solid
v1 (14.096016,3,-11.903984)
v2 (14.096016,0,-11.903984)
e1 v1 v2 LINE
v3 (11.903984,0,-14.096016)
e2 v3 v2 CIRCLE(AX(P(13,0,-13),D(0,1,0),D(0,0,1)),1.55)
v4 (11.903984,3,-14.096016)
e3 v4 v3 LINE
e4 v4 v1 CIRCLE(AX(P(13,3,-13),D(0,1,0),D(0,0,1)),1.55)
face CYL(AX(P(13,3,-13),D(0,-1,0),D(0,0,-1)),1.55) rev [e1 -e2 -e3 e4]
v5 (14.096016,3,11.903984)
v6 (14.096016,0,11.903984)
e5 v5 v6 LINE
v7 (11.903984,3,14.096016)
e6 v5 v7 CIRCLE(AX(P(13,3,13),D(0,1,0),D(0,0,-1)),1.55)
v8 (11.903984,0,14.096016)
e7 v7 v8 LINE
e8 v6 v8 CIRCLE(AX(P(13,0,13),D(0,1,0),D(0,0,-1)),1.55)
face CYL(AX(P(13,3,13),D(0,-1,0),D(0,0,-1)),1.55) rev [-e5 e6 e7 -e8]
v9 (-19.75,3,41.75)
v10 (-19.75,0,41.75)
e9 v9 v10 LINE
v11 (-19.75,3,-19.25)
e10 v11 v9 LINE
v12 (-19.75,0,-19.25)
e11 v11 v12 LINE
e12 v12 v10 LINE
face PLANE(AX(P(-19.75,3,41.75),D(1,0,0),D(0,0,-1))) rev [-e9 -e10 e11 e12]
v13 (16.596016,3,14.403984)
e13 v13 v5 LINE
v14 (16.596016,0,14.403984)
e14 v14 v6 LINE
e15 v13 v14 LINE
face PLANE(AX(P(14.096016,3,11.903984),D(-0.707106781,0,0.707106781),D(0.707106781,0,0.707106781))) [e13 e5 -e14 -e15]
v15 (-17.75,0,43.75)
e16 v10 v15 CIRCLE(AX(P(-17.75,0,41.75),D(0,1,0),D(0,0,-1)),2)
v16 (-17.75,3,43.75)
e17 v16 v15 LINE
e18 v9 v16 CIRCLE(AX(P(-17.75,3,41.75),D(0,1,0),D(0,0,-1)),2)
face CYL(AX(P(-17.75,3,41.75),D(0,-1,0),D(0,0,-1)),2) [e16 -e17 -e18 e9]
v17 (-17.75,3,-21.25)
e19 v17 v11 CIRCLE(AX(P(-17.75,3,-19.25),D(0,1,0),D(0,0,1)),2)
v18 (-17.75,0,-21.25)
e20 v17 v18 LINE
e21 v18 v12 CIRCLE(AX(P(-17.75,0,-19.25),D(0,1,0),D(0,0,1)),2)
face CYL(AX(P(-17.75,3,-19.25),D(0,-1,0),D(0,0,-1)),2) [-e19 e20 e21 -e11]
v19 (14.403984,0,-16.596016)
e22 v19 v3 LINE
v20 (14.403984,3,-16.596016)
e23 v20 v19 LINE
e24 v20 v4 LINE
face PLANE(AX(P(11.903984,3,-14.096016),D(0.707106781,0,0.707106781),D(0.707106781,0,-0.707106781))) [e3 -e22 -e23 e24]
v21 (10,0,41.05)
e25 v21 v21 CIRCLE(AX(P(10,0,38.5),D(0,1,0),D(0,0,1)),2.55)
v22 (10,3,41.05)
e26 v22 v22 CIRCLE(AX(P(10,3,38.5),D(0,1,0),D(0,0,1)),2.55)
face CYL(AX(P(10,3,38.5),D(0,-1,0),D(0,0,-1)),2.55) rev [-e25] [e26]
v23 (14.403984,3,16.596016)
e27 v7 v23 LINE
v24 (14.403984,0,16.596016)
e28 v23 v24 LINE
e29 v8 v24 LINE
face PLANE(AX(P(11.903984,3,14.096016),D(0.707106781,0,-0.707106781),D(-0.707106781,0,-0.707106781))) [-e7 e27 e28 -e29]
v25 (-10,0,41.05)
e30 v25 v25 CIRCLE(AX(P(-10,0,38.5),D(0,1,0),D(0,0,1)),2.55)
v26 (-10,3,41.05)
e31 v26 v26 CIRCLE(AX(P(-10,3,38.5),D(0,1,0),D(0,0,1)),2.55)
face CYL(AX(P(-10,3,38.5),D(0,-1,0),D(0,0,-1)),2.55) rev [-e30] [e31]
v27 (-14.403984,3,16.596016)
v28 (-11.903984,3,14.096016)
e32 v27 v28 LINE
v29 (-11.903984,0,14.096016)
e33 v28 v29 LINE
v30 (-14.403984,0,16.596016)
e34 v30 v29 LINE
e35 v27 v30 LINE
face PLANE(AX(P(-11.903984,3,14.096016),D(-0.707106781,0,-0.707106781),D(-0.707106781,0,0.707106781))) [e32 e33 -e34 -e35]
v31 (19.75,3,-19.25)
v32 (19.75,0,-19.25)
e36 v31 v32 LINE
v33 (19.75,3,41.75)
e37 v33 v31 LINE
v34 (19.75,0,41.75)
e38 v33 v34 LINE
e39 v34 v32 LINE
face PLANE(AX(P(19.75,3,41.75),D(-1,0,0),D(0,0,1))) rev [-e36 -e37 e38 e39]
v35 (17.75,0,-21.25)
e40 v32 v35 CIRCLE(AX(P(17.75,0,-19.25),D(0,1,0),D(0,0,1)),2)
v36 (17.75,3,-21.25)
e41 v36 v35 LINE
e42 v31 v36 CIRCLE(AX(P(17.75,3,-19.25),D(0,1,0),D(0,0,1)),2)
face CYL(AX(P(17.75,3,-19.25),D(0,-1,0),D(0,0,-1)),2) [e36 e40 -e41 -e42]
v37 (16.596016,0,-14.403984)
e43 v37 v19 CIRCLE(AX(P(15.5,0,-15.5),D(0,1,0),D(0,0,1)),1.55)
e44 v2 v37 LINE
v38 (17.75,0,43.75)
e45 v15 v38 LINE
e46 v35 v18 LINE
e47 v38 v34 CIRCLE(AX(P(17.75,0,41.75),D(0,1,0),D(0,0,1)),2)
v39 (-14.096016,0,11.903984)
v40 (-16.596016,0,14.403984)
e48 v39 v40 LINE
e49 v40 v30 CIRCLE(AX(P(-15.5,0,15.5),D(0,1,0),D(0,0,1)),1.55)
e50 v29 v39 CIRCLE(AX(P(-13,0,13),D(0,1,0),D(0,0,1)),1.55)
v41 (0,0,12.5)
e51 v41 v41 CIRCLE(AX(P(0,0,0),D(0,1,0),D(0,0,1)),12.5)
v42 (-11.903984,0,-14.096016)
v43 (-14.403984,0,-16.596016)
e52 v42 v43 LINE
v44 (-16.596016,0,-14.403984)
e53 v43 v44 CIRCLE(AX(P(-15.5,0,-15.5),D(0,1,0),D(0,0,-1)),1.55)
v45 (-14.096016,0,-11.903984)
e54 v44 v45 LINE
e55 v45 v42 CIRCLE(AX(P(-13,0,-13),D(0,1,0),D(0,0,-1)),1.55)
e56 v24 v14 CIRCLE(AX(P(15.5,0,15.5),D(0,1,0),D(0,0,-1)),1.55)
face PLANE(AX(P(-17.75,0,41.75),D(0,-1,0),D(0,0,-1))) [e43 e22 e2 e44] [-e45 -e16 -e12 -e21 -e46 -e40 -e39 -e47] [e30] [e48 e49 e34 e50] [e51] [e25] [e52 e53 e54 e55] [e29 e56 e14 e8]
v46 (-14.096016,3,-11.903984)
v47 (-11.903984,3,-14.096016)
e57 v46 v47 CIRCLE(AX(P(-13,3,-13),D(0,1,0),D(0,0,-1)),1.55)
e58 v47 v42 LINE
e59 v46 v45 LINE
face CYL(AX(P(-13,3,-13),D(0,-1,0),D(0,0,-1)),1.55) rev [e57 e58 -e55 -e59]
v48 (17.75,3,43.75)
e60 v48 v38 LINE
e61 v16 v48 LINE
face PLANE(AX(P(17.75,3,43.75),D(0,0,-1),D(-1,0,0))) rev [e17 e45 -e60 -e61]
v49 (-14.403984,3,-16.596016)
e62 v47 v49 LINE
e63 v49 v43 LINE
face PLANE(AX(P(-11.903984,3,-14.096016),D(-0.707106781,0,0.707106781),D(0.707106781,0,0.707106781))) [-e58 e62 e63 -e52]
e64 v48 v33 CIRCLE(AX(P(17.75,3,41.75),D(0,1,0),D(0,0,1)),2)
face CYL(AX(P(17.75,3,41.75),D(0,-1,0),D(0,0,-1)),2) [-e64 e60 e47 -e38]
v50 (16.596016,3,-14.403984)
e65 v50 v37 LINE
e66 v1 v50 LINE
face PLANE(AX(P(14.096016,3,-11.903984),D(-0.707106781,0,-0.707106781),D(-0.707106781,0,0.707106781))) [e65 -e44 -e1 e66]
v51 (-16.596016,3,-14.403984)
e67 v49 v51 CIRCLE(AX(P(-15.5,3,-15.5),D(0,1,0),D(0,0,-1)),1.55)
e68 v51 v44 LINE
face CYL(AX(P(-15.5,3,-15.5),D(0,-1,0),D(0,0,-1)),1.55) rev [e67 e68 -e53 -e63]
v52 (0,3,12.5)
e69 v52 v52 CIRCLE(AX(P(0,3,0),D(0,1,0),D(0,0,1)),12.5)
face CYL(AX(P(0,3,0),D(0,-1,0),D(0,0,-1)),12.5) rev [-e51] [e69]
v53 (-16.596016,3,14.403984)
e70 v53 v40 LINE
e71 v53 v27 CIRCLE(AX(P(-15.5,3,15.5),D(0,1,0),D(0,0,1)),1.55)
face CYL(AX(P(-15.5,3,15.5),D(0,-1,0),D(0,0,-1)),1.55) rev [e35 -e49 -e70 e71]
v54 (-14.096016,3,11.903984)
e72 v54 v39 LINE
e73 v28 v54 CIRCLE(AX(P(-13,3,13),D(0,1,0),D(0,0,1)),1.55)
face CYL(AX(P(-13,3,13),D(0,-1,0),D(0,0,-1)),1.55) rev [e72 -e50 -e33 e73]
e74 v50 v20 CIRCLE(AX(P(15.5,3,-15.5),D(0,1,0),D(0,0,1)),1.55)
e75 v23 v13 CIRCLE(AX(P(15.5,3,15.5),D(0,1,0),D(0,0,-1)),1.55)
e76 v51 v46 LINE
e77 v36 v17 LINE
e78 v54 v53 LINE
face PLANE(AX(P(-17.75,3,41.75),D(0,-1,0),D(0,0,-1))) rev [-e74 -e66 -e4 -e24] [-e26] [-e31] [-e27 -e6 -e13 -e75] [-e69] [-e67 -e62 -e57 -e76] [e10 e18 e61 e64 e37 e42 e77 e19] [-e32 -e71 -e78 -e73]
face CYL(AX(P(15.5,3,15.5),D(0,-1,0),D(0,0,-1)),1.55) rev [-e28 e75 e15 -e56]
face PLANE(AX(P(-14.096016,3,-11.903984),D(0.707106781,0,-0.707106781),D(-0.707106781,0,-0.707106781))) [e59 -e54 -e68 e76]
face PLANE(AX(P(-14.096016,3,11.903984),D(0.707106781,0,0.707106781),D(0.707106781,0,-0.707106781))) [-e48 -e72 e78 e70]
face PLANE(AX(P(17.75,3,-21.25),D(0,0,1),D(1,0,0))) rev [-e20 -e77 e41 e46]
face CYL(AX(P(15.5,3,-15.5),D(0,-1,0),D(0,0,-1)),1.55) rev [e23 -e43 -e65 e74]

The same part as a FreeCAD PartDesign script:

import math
import FreeCAD as App
import Part
import Sketcher

doc = App.newDocument("Part")
body = doc.addObject("PartDesign::Body", "Body")

# Sketch on XZ plane
sketch1 = body.newObject("Sketcher::SketchObject", "Sketch")
sketch1.AttachmentSupport = (doc.getObject("XZ_Plane"), [""])
sketch1.MapMode = "FlatFace"
sketch1.addGeometry([
    Part.LineSegment(App.Vector(-17.75, 43.75, 0), App.Vector(17.75, 43.75, 0)),  # 0
    Part.ArcOfCircle(Part.Circle(App.Vector(17.75, 41.75, 0), App.Vector(0, 0, 1), 2), math.radians(0), math.radians(90)),  # 1
    Part.LineSegment(App.Vector(19.75, 41.75, 0), App.Vector(19.75, -19.25, 0)),  # 2
    Part.ArcOfCircle(Part.Circle(App.Vector(17.75, -19.25, 0), App.Vector(0, 0, 1), 2), math.radians(-90), math.radians(0)),  # 3
    Part.LineSegment(App.Vector(17.75, -21.25, 0), App.Vector(-17.75, -21.25, 0)),  # 4
    Part.ArcOfCircle(Part.Circle(App.Vector(-17.75, -19.25, 0), App.Vector(0, 0, 1), 2), math.radians(-180), math.radians(-90)),  # 5
    Part.LineSegment(App.Vector(-19.75, -19.25, 0), App.Vector(-19.75, 41.75, 0)),  # 6
    Part.ArcOfCircle(Part.Circle(App.Vector(-17.75, 41.75, 0), App.Vector(0, 0, 1), 2), math.radians(90), math.radians(180)),  # 7
    Part.Circle(App.Vector(10, 38.5, 0), App.Vector(0, 0, 1), 2.55),  # 8
    Part.ArcOfCircle(Part.Circle(App.Vector(13, 13, 0), App.Vector(0, 0, 1), 1.55), math.radians(135), math.radians(315)),  # 9
    Part.LineSegment(App.Vector(14.096016, 11.903984, 0), App.Vector(16.596016, 14.403984, 0)),  # 10
    Part.ArcOfCircle(Part.Circle(App.Vector(15.5, 15.5, 0), App.Vector(0, 0, 1), 1.55), math.radians(-45), math.radians(135)),  # 11
    Part.LineSegment(App.Vector(14.403984, 16.596016, 0), App.Vector(11.903984, 14.096016, 0)),  # 12
    Part.Circle(App.Vector(-10, 38.5, 0), App.Vector(0, 0, 1), 2.55),  # 13
    Part.LineSegment(App.Vector(-11.903984, 14.096016, 0), App.Vector(-14.403984, 16.596016, 0)),  # 14
    Part.ArcOfCircle(Part.Circle(App.Vector(-15.5, 15.5, 0), App.Vector(0, 0, 1), 1.55), math.radians(45), math.radians(225)),  # 15
    Part.LineSegment(App.Vector(-16.596016, 14.403984, 0), App.Vector(-14.096016, 11.903984, 0)),  # 16
    Part.ArcOfCircle(Part.Circle(App.Vector(-13, 13, 0), App.Vector(0, 0, 1), 1.55), math.radians(-135), math.radians(45)),  # 17
    Part.LineSegment(App.Vector(11.903984, -14.096016, 0), App.Vector(14.403984, -16.596016, 0)),  # 18
    Part.ArcOfCircle(Part.Circle(App.Vector(15.5, -15.5, 0), App.Vector(0, 0, 1), 1.55), math.radians(-135), math.radians(45)),  # 19
    Part.LineSegment(App.Vector(16.596016, -14.403984, 0), App.Vector(14.096016, -11.903984, 0)),  # 20
    Part.ArcOfCircle(Part.Circle(App.Vector(13, -13, 0), App.Vector(0, 0, 1), 1.55), math.radians(45), math.radians(225)),  # 21
    Part.Circle(App.Vector(0, 0, 0), App.Vector(0, 0, 1), 12.5),  # 22
    Part.ArcOfCircle(Part.Circle(App.Vector(-13, -13, 0), App.Vector(0, 0, 1), 1.55), math.radians(-45), math.radians(135)),  # 23
    Part.LineSegment(App.Vector(-14.096016, -11.903984, 0), App.Vector(-16.596016, -14.403984, 0)),  # 24
    Part.ArcOfCircle(Part.Circle(App.Vector(-15.5, -15.5, 0), App.Vector(0, 0, 1), 1.55), math.radians(135), math.radians(315)),  # 25
    Part.LineSegment(App.Vector(-14.403984, -16.596016, 0), App.Vector(-11.903984, -14.096016, 0)),  # 26
], False)
sketch1.addConstraint([
    Sketcher.Constraint("Tangent", 0, 2, 1, 2),
    Sketcher.Constraint("Tangent", 1, 1, 2, 1),
    Sketcher.Constraint("Tangent", 2, 2, 3, 2),
    Sketcher.Constraint("Tangent", 3, 1, 4, 1),
    Sketcher.Constraint("Tangent", 4, 2, 5, 2),
    Sketcher.Constraint("Tangent", 5, 1, 6, 1),
    Sketcher.Constraint("Tangent", 6, 2, 7, 2),
    Sketcher.Constraint("Tangent", 7, 1, 0, 1),
    Sketcher.Constraint("Tangent", 9, 2, 10, 1),
    Sketcher.Constraint("Tangent", 10, 2, 11, 1),
    Sketcher.Constraint("Tangent", 11, 2, 12, 1),
    Sketcher.Constraint("Tangent", 12, 2, 9, 1),
    Sketcher.Constraint("Tangent", 14, 2, 15, 1),
    Sketcher.Constraint("Tangent", 15, 2, 16, 1),
    Sketcher.Constraint("Tangent", 16, 2, 17, 1),
    Sketcher.Constraint("Tangent", 17, 2, 14, 1),
    Sketcher.Constraint("Tangent", 18, 2, 19, 1),
    Sketcher.Constraint("Tangent", 19, 2, 20, 1),
    Sketcher.Constraint("Tangent", 20, 2, 21, 1),
    Sketcher.Constraint("Tangent", 21, 2, 18, 1),
    Sketcher.Constraint("Tangent", 23, 2, 24, 1),
    Sketcher.Constraint("Tangent", 24, 2, 25, 1),
    Sketcher.Constraint("Tangent", 25, 2, 26, 1),
    Sketcher.Constraint("Tangent", 26, 2, 23, 1),
    Sketcher.Constraint("Horizontal", 0),
    Sketcher.Constraint("Vertical", 2),
    Sketcher.Constraint("Horizontal", 4),
    Sketcher.Constraint("Vertical", 6),
    Sketcher.Constraint("Coincident", 22, 3, -1, 1),
    Sketcher.Constraint("Equal", 1, 3),
    Sketcher.Constraint("Equal", 3, 5),
    Sketcher.Constraint("Equal", 5, 7),
    Sketcher.Constraint("Equal", 9, 11),
    Sketcher.Constraint("Equal", 8, 13),
    Sketcher.Constraint("Equal", 11, 15),
    Sketcher.Constraint("Equal", 15, 17),
    Sketcher.Constraint("Equal", 17, 19),
    Sketcher.Constraint("Equal", 19, 21),
    Sketcher.Constraint("Equal", 21, 23),
    Sketcher.Constraint("Equal", 23, 25),
    Sketcher.Constraint("Symmetric", 15, 3, 19, 3, -1, 1),
    Sketcher.Constraint("Symmetric", 17, 3, 21, 3, -1, 1),
    Sketcher.Constraint("Symmetric", 9, 3, 23, 3, -1, 1),
    Sketcher.Constraint("Symmetric", 11, 3, 25, 3, -1, 1),
    Sketcher.Constraint("Symmetric", 8, 3, 13, 3, -2),
    Sketcher.Constraint("Symmetric", 11, 3, 15, 3, -2),
    Sketcher.Constraint("Symmetric", 9, 3, 17, 3, -2),
    Sketcher.Constraint("Perpendicular", 12, 14),
    Sketcher.Constraint("Diameter", 22, 25.0),
    Sketcher.Constraint("Radius", 1, 2.0),
    Sketcher.Constraint("Diameter", 8, 5.1),
    Sketcher.Constraint("DistanceY", 2, 2, 2, 1, 61.0),
    Sketcher.Constraint("Radius", 9, 1.55),
    Sketcher.Constraint("DistanceX", 0, 1, 0, 2, 35.5),
    Sketcher.Constraint("DistanceX", -1, 1, 8, 3, 10.0),
    Sketcher.Constraint("DistanceX", -1, 1, 9, 3, 13.0),
    Sketcher.Constraint("DistanceY", -1, 1, 9, 3, 13.0),
    Sketcher.Constraint("DistanceY", 11, 3, 8, 3, 23.0),
    Sketcher.Constraint("DistanceX", 15, 3, 11, 3, 31.0),
    Sketcher.Constraint("DistanceX", -1, 1, 1, 3, 17.75),
    Sketcher.Constraint("DistanceY", -1, 1, 1, 3, 41.75),
])
pad1 = body.newObject("PartDesign::Pad", "Pad")
pad1.Profile = sketch1
pad1.Length = 3
pad1.Reversed = True

doc.recompute()
